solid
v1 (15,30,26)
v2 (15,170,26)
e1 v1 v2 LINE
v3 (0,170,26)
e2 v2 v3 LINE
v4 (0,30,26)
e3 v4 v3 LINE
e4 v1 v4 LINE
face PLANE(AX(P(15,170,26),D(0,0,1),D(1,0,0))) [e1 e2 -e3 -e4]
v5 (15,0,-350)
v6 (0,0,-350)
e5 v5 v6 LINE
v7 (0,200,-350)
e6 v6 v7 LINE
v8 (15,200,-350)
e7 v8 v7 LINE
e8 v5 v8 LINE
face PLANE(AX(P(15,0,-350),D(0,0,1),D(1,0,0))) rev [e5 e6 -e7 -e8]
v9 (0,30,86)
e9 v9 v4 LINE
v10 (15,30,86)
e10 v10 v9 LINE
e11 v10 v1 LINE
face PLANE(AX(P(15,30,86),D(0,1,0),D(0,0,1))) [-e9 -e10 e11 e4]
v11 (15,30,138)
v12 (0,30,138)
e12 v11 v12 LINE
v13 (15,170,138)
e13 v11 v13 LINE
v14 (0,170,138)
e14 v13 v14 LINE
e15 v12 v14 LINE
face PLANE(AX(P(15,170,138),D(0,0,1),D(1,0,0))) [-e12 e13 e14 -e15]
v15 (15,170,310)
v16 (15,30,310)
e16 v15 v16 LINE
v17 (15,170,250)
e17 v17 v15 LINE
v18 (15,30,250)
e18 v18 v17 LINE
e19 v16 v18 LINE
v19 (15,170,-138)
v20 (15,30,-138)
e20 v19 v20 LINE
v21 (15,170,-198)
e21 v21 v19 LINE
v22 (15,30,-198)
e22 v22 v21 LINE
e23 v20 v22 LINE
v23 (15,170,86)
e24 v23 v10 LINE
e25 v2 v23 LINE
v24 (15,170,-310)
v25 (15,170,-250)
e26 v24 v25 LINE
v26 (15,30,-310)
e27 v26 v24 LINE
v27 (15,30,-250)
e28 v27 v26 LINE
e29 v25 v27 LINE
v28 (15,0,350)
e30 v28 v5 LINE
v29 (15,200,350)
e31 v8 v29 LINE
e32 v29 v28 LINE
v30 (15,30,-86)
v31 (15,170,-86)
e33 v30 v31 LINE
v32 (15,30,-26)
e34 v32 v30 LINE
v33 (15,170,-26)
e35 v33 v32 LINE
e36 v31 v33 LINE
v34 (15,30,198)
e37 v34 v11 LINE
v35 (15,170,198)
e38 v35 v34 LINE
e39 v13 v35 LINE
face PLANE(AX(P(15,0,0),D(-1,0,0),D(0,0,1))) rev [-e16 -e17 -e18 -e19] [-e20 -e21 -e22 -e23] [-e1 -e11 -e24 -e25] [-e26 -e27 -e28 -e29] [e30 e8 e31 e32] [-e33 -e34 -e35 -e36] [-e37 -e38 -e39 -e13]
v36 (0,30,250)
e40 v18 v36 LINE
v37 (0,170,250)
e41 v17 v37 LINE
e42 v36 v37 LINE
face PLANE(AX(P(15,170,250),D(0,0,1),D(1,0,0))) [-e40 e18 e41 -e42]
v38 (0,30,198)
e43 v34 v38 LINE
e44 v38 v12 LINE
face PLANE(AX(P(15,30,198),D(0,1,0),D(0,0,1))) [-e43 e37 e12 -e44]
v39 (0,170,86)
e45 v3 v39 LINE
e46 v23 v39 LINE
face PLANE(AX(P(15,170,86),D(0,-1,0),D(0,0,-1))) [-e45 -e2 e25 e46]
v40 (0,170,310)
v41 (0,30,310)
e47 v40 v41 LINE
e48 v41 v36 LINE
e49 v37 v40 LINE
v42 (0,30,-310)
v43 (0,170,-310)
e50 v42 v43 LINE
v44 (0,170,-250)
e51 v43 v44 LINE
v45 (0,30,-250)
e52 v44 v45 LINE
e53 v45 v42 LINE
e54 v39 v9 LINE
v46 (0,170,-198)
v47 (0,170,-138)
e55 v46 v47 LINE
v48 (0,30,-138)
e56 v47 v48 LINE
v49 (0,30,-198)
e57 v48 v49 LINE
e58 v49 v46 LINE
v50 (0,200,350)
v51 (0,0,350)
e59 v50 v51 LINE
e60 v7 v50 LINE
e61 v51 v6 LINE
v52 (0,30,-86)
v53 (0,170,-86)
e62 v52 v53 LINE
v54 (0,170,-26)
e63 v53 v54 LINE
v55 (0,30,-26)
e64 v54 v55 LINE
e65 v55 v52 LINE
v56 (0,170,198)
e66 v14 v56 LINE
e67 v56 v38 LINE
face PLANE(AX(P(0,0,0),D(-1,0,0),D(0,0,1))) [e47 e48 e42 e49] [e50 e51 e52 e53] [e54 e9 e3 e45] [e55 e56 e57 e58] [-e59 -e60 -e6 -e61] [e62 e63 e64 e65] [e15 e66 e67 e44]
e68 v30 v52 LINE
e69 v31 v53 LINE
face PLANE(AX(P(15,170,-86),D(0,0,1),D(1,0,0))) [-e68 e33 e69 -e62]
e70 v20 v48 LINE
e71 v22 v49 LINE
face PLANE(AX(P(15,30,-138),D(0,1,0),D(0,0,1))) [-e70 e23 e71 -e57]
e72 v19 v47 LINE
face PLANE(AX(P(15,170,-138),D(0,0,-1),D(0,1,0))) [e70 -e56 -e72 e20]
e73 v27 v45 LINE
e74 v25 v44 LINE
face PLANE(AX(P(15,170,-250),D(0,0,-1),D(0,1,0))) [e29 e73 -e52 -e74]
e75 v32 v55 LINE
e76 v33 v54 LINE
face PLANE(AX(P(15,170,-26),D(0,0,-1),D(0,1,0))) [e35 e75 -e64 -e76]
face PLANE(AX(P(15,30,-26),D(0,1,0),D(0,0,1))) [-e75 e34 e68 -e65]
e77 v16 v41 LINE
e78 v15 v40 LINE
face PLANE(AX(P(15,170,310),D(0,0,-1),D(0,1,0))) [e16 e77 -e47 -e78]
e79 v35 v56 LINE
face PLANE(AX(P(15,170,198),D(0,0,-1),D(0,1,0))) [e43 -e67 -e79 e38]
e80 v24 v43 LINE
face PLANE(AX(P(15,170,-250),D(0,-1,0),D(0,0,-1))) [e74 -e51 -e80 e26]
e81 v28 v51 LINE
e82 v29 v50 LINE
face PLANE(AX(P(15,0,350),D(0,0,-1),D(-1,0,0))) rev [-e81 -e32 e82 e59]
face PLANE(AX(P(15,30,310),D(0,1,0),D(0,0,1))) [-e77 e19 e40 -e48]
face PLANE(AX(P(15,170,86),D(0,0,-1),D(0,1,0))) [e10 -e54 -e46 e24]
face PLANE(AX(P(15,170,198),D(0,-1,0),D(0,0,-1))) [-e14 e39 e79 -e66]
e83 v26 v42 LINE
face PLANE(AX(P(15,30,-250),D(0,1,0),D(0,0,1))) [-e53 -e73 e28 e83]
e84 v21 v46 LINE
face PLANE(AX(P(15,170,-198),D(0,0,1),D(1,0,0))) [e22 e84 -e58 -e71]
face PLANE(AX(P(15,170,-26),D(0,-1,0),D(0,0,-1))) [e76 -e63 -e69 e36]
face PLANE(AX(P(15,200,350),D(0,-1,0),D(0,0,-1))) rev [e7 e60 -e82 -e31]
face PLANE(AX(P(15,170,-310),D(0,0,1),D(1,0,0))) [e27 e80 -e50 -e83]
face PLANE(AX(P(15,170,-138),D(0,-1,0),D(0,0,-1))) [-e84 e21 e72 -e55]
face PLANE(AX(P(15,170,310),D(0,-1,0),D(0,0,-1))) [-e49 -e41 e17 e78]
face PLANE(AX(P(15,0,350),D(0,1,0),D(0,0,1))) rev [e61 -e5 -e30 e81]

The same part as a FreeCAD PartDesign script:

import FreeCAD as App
import Part
import Sketcher
from FreeCAD import Vector


def add_polygon(sketch, points):
    """Adds a closed chain of lines whose ends are joined by coincident constraints."""
    first, n = sketch.GeometryCount, len(points)
    for a, b in zip(points, points[1:] + points[:1]):
        sketch.addGeometry(Part.LineSegment(App.Vector(*a, 0), App.Vector(*b, 0)), False)
    for i in range(n):
        sketch.addConstraint(Sketcher.Constraint("Coincident", first + i, 2, first + (i + 1) % n, 1))

doc = App.newDocument("Part")
body = doc.addObject("PartDesign::Body", "Body")

# Sketch on YZ plane
sketch1 = body.newObject("Sketcher::SketchObject", "Sketch")
sketch1.AttachmentSupport = (doc.getObject("YZ_Plane"), [""])
sketch1.MapMode = "FlatFace"
add_polygon(sketch1, [(200, 350), (0, 350), (0, -350), (200, -350)])  # lines 0-3
add_polygon(sketch1, [(30, 250), (30, 310), (170, 310), (170, 250)])  # lines 4-7
add_polygon(sketch1, [(30, 138), (30, 198), (170, 198), (170, 138)])  # lines 8-11
add_polygon(sketch1, [(30, 26), (30, 86), (170, 86), (170, 26)])  # lines 12-15
add_polygon(sketch1, [(30, -86), (30, -26), (170, -26), (170, -86)])  # lines 16-19
add_polygon(sketch1, [(30, -198), (30, -138), (170, -138), (170, -198)])  # lines 20-23
add_polygon(sketch1, [(30, -310), (30, -250), (170, -250), (170, -310)])  # lines 24-27
sketch1.addConstraint(Sketcher.Constraint("Horizontal", 0))
sketch1.addConstraint(Sketcher.Constraint("Vertical", 1))
sketch1.addConstraint(Sketcher.Constraint("Horizontal", 2))
sketch1.addConstraint(Sketcher.Constraint("Vertical", 3))
sketch1.addConstraint(Sketcher.Constraint("Vertical", 4))
sketch1.addConstraint(Sketcher.Constraint("Horizontal", 5))
sketch1.addConstraint(Sketcher.Constraint("Vertical", 6))
sketch1.addConstraint(Sketcher.Constraint("Horizontal", 7))
sketch1.addConstraint(Sketcher.Constraint("Vertical", 8))
sketch1.addConstraint(Sketcher.Constraint("Horizontal", 9))
sketch1.addConstraint(Sketcher.Constraint("Vertical", 10))
sketch1.addConstraint(Sketcher.Constraint("Horizontal", 11))
sketch1.addConstraint(Sketcher.Constraint("Vertical", 12))
sketch1.addConstraint(Sketcher.Constraint("Horizontal", 13))
sketch1.addConstraint(Sketcher.Constraint("Vertical", 14))
sketch1.addConstraint(Sketcher.Constraint("Horizontal", 15))
sketch1.addConstraint(Sketcher.Constraint("Vertical", 16))
sketch1.addConstraint(Sketcher.Constraint("Horizontal", 17))
sketch1.addConstraint(Sketcher.Constraint("Vertical", 18))
sketch1.addConstraint(Sketcher.Constraint("Horizontal", 19))
sketch1.addConstraint(Sketcher.Constraint("Vertical", 20))
sketch1.addConstraint(Sketcher.Constraint("Horizontal", 21))
sketch1.addConstraint(Sketcher.Constraint("Vertical", 22))
sketch1.addConstraint(Sketcher.Constraint("Horizontal", 23))
sketch1.addConstraint(Sketcher.Constraint("Vertical", 24))
sketch1.addConstraint(Sketcher.Constraint("Horizontal", 25))
sketch1.addConstraint(Sketcher.Constraint("Vertical", 26))
sketch1.addConstraint(Sketcher.Constraint("Horizontal", 27))
sketch1.addConstraint(Sketcher.Constraint("Symmetric", 0, 2, 1, 2, -1, 1))
sketch1.addConstraint(Sketcher.Constraint("Symmetric", 15, 2, 16, 2, -1))
sketch1.addConstraint(Sketcher.Constraint("Symmetric", 13, 2, 18, 2, -1))
sketch1.addConstraint(Sketcher.Constraint("Symmetric", 11, 2, 20, 2, -1))
sketch1.addConstraint(Sketcher.Constraint("Symmetric", 9, 2, 22, 2, -1))
sketch1.addConstraint(Sketcher.Constraint("Symmetric", 7, 2, 24, 2, -1))
sketch1.addConstraint(Sketcher.Constraint("Symmetric", 5, 2, 26, 2, -1))
sketch1.addConstraint(Sketcher.Constraint("Vertical", 7, 2, 8, 2))
sketch1.addConstraint(Sketcher.Constraint("Vertical", 6, 2, 9, 2))
sketch1.addConstraint(Sketcher.Constraint("Vertical", 11, 2, 12, 2))
sketch1.addConstraint(Sketcher.Constraint("Vertical", 10, 2, 13, 2))
sketch1.addConstraint(Sketcher.Constraint("Equal", 6, 8))
sketch1.addConstraint(Sketcher.Constraint("Equal", 10, 12))
sketch1.addConstraint(Sketcher.Constraint("DistanceX", 0, 2, 0, 1, 200.0))
sketch1.addConstraint(Sketcher.Constraint("DistanceX", 5, 1, 5, 2, 140.0))
sketch1.addConstraint(Sketcher.Constraint("DistanceY", 1, 2, 1, 1, 700.0))
sketch1.addConstraint(Sketcher.Constraint("DistanceY", 4, 1, 4, 2, 60.0))
sketch1.addConstraint(Sketcher.Constraint("DistanceX", -1, 1, 4, 2, 30.0))
sketch1.addConstraint(Sketcher.Constraint("DistanceY", -1, 1, 4, 2, 310.0))
sketch1.addConstraint(Sketcher.Constraint("DistanceY", -1, 1, 8, 2, 198.0))
sketch1.addConstraint(Sketcher.Constraint("DistanceY", -1, 1, 12, 2, 86.0))
pad1 = body.newObject("PartDesign::Pad", "Pad")
pad1.Profile = sketch1
pad1.Length = 15

doc.recompute()
